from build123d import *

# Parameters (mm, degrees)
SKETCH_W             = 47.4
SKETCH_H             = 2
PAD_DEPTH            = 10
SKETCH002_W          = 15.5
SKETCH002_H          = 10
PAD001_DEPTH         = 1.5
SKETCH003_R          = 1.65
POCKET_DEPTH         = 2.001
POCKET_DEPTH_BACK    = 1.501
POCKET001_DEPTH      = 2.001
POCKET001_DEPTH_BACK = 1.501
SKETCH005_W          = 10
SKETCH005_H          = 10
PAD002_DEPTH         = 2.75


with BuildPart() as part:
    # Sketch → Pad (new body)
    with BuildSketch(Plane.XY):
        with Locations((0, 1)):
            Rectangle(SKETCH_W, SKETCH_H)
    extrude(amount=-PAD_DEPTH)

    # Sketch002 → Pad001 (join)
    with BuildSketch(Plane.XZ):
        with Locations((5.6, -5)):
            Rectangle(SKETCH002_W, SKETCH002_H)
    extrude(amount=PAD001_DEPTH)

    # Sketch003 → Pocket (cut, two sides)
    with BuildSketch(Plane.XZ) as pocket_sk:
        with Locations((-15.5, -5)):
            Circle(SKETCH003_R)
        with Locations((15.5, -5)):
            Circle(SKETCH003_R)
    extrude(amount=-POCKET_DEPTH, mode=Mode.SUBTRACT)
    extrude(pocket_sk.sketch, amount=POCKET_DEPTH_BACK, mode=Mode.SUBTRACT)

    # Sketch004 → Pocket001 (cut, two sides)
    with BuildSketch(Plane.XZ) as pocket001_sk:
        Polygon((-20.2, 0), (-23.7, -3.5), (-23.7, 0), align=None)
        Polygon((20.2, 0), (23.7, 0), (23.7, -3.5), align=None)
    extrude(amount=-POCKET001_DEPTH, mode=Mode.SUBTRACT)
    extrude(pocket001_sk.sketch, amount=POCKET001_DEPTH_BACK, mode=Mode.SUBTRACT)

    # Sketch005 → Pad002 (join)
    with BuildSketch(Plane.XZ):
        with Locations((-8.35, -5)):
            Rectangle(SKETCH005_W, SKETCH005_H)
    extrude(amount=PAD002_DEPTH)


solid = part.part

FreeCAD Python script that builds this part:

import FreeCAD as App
import Part
import Sketcher

doc = App.newDocument("Part")
body = doc.addObject("PartDesign::Body", "Body")

sketch1 = body.newObject("Sketcher::SketchObject", "Sketch")
sketch1.AttachmentSupport = (doc.getObject("XY_Plane"), [""])
sketch1.MapMode = "FlatFace"
sketch1.addGeometry([
    Part.LineSegment(App.Vector(-23.7, 2, 0), App.Vector(-23.7, 0, 0)),
    Part.LineSegment(App.Vector(-23.7, 0, 0), App.Vector(23.7, 0, 0)),
    Part.LineSegment(App.Vector(23.7, 0, 0), App.Vector(23.7, 2, 0)),
    Part.LineSegment(App.Vector(23.7, 2, 0), App.Vector(-23.7, 2, 0)),
], False)
sketch1.addConstraint([
    Sketcher.Constraint("Coincident", 0, 2, 1, 1),
    Sketcher.Constraint("Coincident", 1, 2, 2, 1),
    Sketcher.Constraint("Coincident", 2, 2, 3, 1),
    Sketcher.Constraint("Coincident", 3, 2, 0, 1),
    Sketcher.Constraint("Vertical", 0),
    Sketcher.Constraint("Horizontal", 1),
    Sketcher.Constraint("Vertical", 2),
    Sketcher.Constraint("Horizontal", 3),
    Sketcher.Constraint("Symmetric", 0, 2, 1, 2, -1, 1),
    Sketcher.Constraint("DistanceY", 0, 2, 0, 1, 2.0),
    Sketcher.Constraint("DistanceX", 1, 1, 1, 2, 47.4),
])
pad1 = body.newObject("PartDesign::Pad", "Pad")
pad1.Profile = sketch1
pad1.Length = 10
pad1.Reversed = True

sketch2 = body.newObject("Sketcher::SketchObject", "Sketch001")
sketch2.AttachmentSupport = (doc.getObject("XZ_Plane"), [""])
sketch2.MapMode = "FlatFace"
sketch2.addGeometry([
    Part.LineSegment(App.Vector(-2, 0, 0), App.Vector(-2, -10, 0)),
    Part.LineSegment(App.Vector(-2, -10, 0), App.Vector(13, -10, 0)),
    Part.LineSegment(App.Vector(13, -10, 0), App.Vector(13, 0, 0)),
    Part.LineSegment(App.Vector(13, 0, 0), App.Vector(-2, 0, 0)),
], False)
sketch2.addConstraint([
    Sketcher.Constraint("Coincident", 0, 2, 1, 1),
    Sketcher.Constraint("Coincident", 1, 2, 2, 1),
    Sketcher.Constraint("Coincident", 2, 2, 3, 1),
    Sketcher.Constraint("Coincident", 3, 2, 0, 1),
    Sketcher.Constraint("Vertical", 0),
    Sketcher.Constraint("Horizontal", 1),
    Sketcher.Constraint("Vertical", 2),
    Sketcher.Constraint("Horizontal", 3),
    Sketcher.Constraint("PointOnObject", 2, 2, -1),
    Sketcher.Constraint("DistanceY", 0, 2, 0, 1, 10.0),
    Sketcher.Constraint("DistanceX", 1, 1, 1, 2, 15.5),
    Sketcher.Constraint("DistanceX", 0, 2, -1, 1, 2.15),
])
pad2 = body.newObject("PartDesign::Pad", "Pad001")
pad2.Profile = sketch2
pad2.Length = 1.5

sketch3 = body.newObject("Sketcher::SketchObject", "Sketch002")
sketch3.AttachmentSupport = (doc.getObject("XZ_Plane"), [""])
sketch3.MapMode = "FlatFace"
sketch3.addGeometry([
    Part.Circle(App.Vector(-15.5, -5, 0), App.Vector(0, 0, 1), 1.6),
    Part.Circle(App.Vector(15.5, -5, 0), App.Vector(0, 0, 1), 1.6),
], False)
sketch3.addConstraint([
    Sketcher.Constraint("Equal", 0, 1),
    Sketcher.Constraint("Symmetric", 0, 3, 1, 3, -2),
    Sketcher.Constraint("Diameter", 0, 3.3),
    Sketcher.Constraint("DistanceY", 0, 3, -1, 1, 5.0),
    Sketcher.Constraint("DistanceX", 0, 3, 1, 3, 31.0),
])
pocket1 = body.newObject("PartDesign::Pocket", "Pocket")
pocket1.Profile = sketch3
pocket1.Type = "ThroughAll"
pocket1.Midplane = True

sketch4 = body.newObject("Sketcher::SketchObject", "Sketch003")
sketch4.AttachmentSupport = (doc.getObject("XZ_Plane"), [""])
sketch4.MapMode = "FlatFace"
sketch4.addGeometry([
    Part.LineSegment(App.Vector(-23.7, -3.5, 0), App.Vector(-20.2, 0, 0)),
    Part.LineSegment(App.Vector(-20.2, 0, 0), App.Vector(-23.7, 0, 0)),
    Part.LineSegment(App.Vector(-23.7, 0, 0), App.Vector(-23.7, -3.5, 0)),
    Part.LineSegment(App.Vector(23.7, 0, 0), App.Vector(20.2, 0, 0)),
    Part.LineSegment(App.Vector(20.2, 0, 0), App.Vector(23.7, -3.5, 0)),
    Part.LineSegment(App.Vector(23.7, -3.5, 0), App.Vector(23.7, 0, 0)),
], False)
sketch4.addConstraint([
    Sketcher.Constraint("Coincident", 0, 2, 1, 1),
    Sketcher.Constraint("Coincident", 1, 2, 2, 1),
    Sketcher.Constraint("Coincident", 2, 2, 0, 1),
    Sketcher.Constraint("Coincident", 3, 2, 4, 1),
    Sketcher.Constraint("Coincident", 4, 2, 5, 1),
    Sketcher.Constraint("Coincident", 5, 2, 3, 1),
    Sketcher.Constraint("Horizontal", 1),
    Sketcher.Constraint("Vertical", 2),
    Sketcher.Constraint("Horizontal", 3),
    Sketcher.Constraint("Vertical", 5),
    Sketcher.Constraint("Symmetric", 0, 2, 3, 2, -1, 1),
    Sketcher.Constraint("Symmetric", 2, 2, 4, 2, -2),
    Sketcher.Constraint("PointOnObject", 0, 2, -1),
    Sketcher.Constraint("Perpendicular", 0, 4),
    Sketcher.Constraint("DistanceX", 1, 2, 1, 1, 3.5),
    Sketcher.Constraint("DistanceX", 0, 2, -1, 1, 20.2),
])
pocket2 = body.newObject("PartDesign::Pocket", "Pocket001")
pocket2.Profile = sketch4
pocket2.Type = "ThroughAll"
pocket2.Midplane = True

sketch5 = body.newObject("Sketcher::SketchObject", "Sketch004")
sketch5.AttachmentSupport = (doc.getObject("XZ_Plane"), [""])
sketch5.MapMode = "FlatFace"
sketch5.addGeometry([
    Part.LineSegment(App.Vector(-13, 0, 0), App.Vector(-13, -10, 0)),
    Part.LineSegment(App.Vector(-13, -10, 0), App.Vector(-3, -10, 0)),
    Part.LineSegment(App.Vector(-3, -10, 0), App.Vector(-3, 0, 0)),
    Part.LineSegment(App.Vector(-3, 0, 0), App.Vector(-13, 0, 0)),
], False)
sketch5.addConstraint([
    Sketcher.Constraint("Coincident", 0, 2, 1, 1),
    Sketcher.Constraint("Coincident", 1, 2, 2, 1),
    Sketcher.Constraint("Coincident", 2, 2, 3, 1),
    Sketcher.Constraint("Coincident", 3, 2, 0, 1),
    Sketcher.Constraint("Vertical", 0),
    Sketcher.Constraint("Horizontal", 1),
    Sketcher.Constraint("Vertical", 2),
    Sketcher.Constraint("Horizontal", 3),
    Sketcher.Constraint("PointOnObject", 2, 2, -1),
    Sketcher.Constraint("Equal", 3, 0),
    Sketcher.Constraint("DistanceX", 1, 1, 1, 2, 10.0),
    Sketcher.Constraint("DistanceX", 0, 2, -1, 1, 13.35),
])
pad3 = body.newObject("PartDesign::Pad", "Pad002")
pad3.Profile = sketch5
pad3.Length = 2.75

doc.recompute()
